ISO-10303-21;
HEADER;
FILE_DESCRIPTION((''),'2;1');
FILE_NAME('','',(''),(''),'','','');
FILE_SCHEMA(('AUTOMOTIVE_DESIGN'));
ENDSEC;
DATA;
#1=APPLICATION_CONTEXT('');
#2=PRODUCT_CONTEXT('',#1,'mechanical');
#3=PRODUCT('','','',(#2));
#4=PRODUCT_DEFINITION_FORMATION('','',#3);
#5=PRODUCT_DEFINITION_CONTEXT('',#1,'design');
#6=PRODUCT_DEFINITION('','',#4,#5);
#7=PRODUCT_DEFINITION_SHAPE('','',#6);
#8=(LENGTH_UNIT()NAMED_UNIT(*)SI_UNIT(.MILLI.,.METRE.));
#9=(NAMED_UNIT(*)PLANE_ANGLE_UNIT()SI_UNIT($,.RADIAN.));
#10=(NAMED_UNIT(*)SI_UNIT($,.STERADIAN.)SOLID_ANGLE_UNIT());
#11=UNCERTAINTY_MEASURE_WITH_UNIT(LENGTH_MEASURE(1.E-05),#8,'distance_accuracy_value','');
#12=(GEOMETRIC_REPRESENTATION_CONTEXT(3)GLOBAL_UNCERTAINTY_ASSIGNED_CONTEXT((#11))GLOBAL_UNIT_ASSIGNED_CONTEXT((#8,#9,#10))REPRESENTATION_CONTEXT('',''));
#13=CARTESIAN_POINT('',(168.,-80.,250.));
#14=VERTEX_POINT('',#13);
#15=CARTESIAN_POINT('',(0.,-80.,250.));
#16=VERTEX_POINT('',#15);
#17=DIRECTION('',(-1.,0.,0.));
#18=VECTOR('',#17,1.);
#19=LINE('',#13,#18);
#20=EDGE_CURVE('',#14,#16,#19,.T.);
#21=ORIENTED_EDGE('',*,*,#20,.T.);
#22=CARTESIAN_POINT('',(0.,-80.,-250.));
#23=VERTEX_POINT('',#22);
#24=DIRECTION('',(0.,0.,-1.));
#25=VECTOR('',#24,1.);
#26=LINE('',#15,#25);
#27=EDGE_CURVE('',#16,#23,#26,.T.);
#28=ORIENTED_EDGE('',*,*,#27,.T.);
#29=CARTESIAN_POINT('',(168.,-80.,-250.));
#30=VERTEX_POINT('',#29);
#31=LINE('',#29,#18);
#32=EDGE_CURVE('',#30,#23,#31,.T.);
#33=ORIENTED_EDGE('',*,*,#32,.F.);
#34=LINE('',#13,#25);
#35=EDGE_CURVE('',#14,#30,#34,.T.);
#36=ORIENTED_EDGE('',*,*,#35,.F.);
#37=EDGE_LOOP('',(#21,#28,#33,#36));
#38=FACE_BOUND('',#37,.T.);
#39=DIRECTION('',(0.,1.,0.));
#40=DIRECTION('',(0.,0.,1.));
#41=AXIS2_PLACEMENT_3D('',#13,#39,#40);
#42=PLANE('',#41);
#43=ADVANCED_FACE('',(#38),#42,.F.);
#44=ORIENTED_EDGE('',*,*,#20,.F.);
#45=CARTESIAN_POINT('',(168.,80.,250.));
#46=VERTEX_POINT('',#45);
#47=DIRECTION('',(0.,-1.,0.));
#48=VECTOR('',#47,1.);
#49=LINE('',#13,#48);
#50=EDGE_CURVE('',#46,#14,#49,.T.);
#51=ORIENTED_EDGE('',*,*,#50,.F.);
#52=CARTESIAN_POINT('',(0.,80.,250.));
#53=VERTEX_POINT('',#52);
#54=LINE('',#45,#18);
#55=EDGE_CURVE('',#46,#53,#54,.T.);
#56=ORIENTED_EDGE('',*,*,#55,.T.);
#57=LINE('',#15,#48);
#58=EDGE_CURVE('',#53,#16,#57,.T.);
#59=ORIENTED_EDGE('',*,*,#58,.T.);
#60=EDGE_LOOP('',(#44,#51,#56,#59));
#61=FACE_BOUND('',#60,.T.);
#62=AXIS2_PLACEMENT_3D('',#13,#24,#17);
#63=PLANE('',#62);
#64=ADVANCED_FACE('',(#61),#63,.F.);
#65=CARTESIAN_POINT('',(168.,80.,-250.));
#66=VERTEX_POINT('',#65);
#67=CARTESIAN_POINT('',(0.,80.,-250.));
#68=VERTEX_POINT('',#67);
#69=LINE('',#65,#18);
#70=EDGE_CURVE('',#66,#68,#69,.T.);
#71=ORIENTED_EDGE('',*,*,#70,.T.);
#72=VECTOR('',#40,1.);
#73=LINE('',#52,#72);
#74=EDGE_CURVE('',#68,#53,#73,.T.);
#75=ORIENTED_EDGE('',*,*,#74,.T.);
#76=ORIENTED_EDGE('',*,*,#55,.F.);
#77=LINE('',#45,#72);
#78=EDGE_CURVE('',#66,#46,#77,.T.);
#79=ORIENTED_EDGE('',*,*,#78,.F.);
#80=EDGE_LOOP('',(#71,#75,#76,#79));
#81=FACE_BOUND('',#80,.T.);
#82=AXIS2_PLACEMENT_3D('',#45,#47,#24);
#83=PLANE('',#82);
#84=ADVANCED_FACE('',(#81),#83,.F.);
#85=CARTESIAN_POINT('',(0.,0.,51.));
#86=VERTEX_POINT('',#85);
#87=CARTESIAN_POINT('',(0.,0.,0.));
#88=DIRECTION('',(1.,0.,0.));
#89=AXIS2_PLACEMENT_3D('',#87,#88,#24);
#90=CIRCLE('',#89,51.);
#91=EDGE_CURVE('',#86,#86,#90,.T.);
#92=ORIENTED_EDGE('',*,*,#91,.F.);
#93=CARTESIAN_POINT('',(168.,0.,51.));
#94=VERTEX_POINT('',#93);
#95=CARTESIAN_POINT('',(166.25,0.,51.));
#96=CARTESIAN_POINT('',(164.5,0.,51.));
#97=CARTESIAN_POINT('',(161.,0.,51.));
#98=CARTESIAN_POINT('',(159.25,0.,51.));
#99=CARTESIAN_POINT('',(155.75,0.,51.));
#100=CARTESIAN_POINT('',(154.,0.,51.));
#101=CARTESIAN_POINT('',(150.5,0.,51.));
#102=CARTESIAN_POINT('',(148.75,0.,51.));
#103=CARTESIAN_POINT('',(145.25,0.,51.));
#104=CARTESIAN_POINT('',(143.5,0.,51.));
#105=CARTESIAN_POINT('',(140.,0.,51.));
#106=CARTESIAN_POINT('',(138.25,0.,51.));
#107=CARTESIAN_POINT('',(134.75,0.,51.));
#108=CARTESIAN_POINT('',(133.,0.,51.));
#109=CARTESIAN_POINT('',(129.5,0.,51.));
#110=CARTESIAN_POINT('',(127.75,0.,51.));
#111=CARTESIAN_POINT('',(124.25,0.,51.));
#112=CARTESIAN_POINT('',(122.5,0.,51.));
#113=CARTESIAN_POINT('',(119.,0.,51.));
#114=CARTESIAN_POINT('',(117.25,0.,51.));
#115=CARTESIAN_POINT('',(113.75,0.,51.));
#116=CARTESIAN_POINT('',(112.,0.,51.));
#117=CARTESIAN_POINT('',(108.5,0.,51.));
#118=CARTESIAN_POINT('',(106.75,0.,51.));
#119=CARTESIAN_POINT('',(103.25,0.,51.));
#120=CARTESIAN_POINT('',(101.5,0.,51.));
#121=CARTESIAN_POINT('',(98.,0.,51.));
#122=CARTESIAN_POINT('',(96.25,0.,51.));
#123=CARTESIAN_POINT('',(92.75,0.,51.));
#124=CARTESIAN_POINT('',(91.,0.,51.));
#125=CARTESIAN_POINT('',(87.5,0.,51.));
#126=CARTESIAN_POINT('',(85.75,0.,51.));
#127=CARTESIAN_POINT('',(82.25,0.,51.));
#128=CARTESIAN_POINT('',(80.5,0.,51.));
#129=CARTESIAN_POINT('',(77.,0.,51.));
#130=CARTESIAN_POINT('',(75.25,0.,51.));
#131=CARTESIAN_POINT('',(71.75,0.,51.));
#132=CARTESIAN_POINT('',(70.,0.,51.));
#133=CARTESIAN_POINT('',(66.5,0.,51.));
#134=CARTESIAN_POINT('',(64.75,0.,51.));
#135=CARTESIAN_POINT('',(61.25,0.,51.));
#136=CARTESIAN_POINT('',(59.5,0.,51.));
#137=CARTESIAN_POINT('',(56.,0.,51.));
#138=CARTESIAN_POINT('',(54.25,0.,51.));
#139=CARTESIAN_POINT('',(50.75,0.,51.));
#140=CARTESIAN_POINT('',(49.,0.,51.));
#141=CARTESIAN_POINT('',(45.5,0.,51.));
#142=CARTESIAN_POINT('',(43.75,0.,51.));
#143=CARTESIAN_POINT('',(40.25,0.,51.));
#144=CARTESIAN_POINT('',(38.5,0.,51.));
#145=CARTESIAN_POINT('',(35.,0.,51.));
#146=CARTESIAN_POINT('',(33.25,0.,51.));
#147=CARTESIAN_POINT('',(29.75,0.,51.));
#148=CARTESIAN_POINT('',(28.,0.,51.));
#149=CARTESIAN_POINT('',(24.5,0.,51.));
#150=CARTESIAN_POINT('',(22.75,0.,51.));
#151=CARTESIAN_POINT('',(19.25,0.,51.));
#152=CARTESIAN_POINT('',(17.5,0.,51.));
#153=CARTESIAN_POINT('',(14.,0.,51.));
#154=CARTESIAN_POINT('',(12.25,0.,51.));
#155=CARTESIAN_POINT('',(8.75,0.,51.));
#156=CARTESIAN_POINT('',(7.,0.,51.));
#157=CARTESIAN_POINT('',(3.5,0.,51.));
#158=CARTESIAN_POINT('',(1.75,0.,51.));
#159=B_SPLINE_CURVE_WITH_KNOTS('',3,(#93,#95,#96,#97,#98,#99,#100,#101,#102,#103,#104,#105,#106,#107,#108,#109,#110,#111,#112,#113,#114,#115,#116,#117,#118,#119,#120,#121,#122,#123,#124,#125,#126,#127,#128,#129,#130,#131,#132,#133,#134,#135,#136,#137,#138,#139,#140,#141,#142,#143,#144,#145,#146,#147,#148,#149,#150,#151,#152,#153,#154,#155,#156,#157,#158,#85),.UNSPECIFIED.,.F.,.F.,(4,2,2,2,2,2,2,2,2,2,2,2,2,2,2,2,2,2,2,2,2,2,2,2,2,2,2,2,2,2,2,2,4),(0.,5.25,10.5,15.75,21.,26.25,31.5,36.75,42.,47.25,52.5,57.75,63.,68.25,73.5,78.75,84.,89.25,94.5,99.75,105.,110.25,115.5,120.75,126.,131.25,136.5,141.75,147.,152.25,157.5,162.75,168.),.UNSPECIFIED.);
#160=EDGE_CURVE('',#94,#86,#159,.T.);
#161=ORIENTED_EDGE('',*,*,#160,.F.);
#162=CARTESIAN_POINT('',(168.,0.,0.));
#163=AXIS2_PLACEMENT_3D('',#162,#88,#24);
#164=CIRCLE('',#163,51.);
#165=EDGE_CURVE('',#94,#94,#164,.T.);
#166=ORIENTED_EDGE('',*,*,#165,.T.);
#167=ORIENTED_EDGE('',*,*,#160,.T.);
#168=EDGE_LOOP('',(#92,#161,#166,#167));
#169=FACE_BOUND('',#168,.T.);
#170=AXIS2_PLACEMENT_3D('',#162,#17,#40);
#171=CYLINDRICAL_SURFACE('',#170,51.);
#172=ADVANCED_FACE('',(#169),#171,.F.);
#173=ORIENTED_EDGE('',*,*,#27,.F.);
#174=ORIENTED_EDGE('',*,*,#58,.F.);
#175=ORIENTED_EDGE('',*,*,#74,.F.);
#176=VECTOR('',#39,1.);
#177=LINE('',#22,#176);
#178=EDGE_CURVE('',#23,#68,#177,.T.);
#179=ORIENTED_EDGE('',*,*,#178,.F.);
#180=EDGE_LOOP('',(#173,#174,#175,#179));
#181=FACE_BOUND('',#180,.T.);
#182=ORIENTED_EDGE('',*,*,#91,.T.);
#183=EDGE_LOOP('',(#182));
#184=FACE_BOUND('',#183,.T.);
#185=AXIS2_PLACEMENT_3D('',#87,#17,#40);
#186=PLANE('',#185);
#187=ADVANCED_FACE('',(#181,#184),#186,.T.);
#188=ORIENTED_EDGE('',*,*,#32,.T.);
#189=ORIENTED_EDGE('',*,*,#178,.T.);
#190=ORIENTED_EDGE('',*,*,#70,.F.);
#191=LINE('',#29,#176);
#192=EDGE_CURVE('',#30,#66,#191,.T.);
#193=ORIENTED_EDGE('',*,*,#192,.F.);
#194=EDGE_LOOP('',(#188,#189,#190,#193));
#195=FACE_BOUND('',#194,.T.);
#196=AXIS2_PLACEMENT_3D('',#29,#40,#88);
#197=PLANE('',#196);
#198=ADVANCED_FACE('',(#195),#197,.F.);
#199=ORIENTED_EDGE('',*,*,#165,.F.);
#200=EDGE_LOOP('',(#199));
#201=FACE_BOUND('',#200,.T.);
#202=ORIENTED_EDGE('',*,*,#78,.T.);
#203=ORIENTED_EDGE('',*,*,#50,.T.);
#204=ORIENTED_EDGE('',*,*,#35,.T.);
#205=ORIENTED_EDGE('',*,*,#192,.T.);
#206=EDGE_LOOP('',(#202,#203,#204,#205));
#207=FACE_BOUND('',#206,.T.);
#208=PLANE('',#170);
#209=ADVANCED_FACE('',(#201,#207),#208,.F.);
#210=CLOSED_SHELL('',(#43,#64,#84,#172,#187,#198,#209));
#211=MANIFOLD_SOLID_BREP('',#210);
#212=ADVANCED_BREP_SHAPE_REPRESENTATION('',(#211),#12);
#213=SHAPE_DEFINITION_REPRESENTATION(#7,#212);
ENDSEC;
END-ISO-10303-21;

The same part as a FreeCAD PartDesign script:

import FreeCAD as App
import Part
import Sketcher
Q = App.Units.Quantity


def add_polygon(sketch, points):
    """Adds a closed chain of lines whose ends are joined by coincident constraints."""
    first, n = sketch.GeometryCount, len(points)
    for a, b in zip(points, points[1:] + points[:1]):
        sketch.addGeometry(Part.LineSegment(App.Vector(*a, 0), App.Vector(*b, 0)), False)
    for i in range(n):
        sketch.addConstraint(Sketcher.Constraint("Coincident", first + i, 2, first + (i + 1) % n, 1))

doc = App.newDocument("Part")
body = doc.addObject("PartDesign::Body", "Body")

# Sketch on YZ plane
sketch1 = doc.addObject("Sketcher::SketchObject", "Sketch")
body.addObject(sketch1)
sketch1.AttachmentSupport = (doc.YZ_Plane, [""])
sketch1.MapMode = "FlatFace"
add_polygon(sketch1, [(80, 250), (-80, 250), (-80, -250), (80, -250)])  # lines 0-3
sketch1.addGeometry(Part.Circle(App.Vector(0, 0, 0), App.Vector(0, 0, 1), 51), False)  # 4
sketch1.addConstraint(Sketcher.Constraint("Horizontal", 0))
sketch1.addConstraint(Sketcher.Constraint("Vertical", 1))
sketch1.addConstraint(Sketcher.Constraint("Horizontal", 2))
sketch1.addConstraint(Sketcher.Constraint("Vertical", 3))
sketch1.addConstraint(Sketcher.Constraint("Coincident", 4, 3, -1, 1))
sketch1.addConstraint(Sketcher.Constraint("Symmetric", 0, 2, 2, 2, -1, 1))
sketch1.addConstraint(Sketcher.Constraint("Diameter", 4, Q("102 mm")))
sketch1.addConstraint(Sketcher.Constraint("DistanceX", 0, 2, 0, 1, Q("160 mm")))
sketch1.addConstraint(Sketcher.Constraint("DistanceY", 1, 2, 1, 1, Q("500 mm")))
pad1 = doc.addObject("PartDesign::Pad", "Pad")
body.addObject(pad1)
pad1.Profile = sketch1
pad1.Length = 168

doc.recompute()
